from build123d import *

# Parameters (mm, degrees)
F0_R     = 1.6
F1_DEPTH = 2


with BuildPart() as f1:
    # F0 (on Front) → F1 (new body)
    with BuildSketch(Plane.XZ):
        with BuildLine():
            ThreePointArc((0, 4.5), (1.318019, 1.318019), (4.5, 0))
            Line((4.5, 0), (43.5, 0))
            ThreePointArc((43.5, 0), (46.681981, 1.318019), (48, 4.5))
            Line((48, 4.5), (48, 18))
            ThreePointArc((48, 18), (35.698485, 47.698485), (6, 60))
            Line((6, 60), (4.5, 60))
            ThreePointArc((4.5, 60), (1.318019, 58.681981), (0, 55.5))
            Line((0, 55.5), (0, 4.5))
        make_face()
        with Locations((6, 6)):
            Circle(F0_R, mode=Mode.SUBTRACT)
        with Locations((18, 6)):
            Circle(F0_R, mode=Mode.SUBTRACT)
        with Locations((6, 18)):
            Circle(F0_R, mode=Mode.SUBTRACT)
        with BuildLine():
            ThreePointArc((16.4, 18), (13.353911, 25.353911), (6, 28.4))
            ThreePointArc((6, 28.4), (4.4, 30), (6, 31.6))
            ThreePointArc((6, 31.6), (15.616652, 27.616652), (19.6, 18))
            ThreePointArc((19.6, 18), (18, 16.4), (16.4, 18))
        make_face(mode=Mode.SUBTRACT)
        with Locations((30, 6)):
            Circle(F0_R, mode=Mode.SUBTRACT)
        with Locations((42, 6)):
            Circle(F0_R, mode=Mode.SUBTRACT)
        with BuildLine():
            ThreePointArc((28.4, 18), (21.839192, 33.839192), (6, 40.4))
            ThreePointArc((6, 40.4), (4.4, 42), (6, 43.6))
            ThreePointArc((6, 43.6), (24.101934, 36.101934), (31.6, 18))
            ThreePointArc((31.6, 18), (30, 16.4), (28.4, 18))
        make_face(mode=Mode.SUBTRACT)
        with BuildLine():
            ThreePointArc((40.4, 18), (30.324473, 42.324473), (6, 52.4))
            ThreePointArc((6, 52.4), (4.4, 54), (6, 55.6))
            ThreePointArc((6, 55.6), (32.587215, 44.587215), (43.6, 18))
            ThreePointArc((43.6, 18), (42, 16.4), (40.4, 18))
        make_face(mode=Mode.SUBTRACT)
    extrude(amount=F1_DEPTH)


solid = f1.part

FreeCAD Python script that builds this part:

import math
import FreeCAD as App
import Part
import Sketcher

V = App.Vector
Q = App.Units.Quantity

doc = App.newDocument("Part")
body = doc.addObject("PartDesign::Body", "Body")

# Sketch on XZ plane
sketch1 = body.newObject("Sketcher::SketchObject", "Sketch")
sketch1.AttachmentSupport = (doc.getObject("XZ_Plane"), [""])
sketch1.MapMode = "FlatFace"
sketch1.addGeometry(Part.ArcOfCircle(Part.Circle(V(4.5, 4.5, 0), V(0, 0, 1), 4.5), math.radians(180), math.radians(270)), False)
sketch1.addGeometry(Part.LineSegment(V(4.5, 0, 0), V(43.5, 0, 0)), False)
sketch1.addGeometry(Part.ArcOfCircle(Part.Circle(V(43.5, 4.5, 0), V(0, 0, 1), 4.5), math.radians(-90), math.radians(0)), False)
sketch1.addGeometry(Part.LineSegment(V(48, 4.5, 0), V(48, 18, 0)), False)
sketch1.addGeometry(Part.ArcOfCircle(Part.Circle(V(6, 18, 0), V(0, 0, 1), 42), math.radians(0), math.radians(90)), False)
sketch1.addGeometry(Part.LineSegment(V(6, 60, 0), V(4.5, 60, 0)), False)
sketch1.addGeometry(Part.ArcOfCircle(Part.Circle(V(4.5, 55.5, 0), V(0, 0, 1), 4.5), math.radians(90), math.radians(180)), False)
sketch1.addGeometry(Part.LineSegment(V(0, 55.5, 0), V(0, 4.5, 0)), False)
sketch1.addGeometry(Part.Circle(V(6, 6, 0), V(0, 0, 1), 1.6), False)
sketch1.addGeometry(Part.Circle(V(18, 6, 0), V(0, 0, 1), 1.6), False)
sketch1.addGeometry(Part.Circle(V(6, 18, 0), V(0, 0, 1), 1.6), False)
sketch1.addGeometry(Part.ArcOfCircle(Part.Circle(V(18, 18, 0), V(0, 0, 1), 1.6), math.radians(180), math.radians(360)), False)
sketch1.addGeometry(Part.ArcOfCircle(Part.Circle(V(6, 18, 0), V(0, 0, 1), 10.4), math.radians(0), math.radians(90)), False)
sketch1.addGeometry(Part.ArcOfCircle(Part.Circle(V(6, 30, 0), V(0, 0, 1), 1.6), math.radians(90), math.radians(270)), False)
sketch1.addGeometry(Part.ArcOfCircle(Part.Circle(V(6, 18, 0), V(0, 0, 1), 13.6), math.radians(0), math.radians(90)), False)
sketch1.addGeometry(Part.Circle(V(30, 6, 0), V(0, 0, 1), 1.6), False)
sketch1.addGeometry(Part.Circle(V(42, 6, 0), V(0, 0, 1), 1.6), False)
sketch1.addGeometry(Part.ArcOfCircle(Part.Circle(V(30, 18, 0), V(0, 0, 1), 1.6), math.radians(180), math.radians(360)), False)
sketch1.addGeometry(Part.ArcOfCircle(Part.Circle(V(6, 18, 0), V(0, 0, 1), 22.4), math.radians(0), math.radians(90)), False)
sketch1.addGeometry(Part.ArcOfCircle(Part.Circle(V(6, 42, 0), V(0, 0, 1), 1.6), math.radians(90), math.radians(270)), False)
sketch1.addGeometry(Part.ArcOfCircle(Part.Circle(V(6, 18, 0), V(0, 0, 1), 25.6), math.radians(0), math.radians(90)), False)
sketch1.addGeometry(Part.ArcOfCircle(Part.Circle(V(42, 18, 0), V(0, 0, 1), 1.6), math.radians(180), math.radians(360)), False)
sketch1.addGeometry(Part.ArcOfCircle(Part.Circle(V(6, 18, 0), V(0, 0, 1), 34.4), math.radians(0), math.radians(90)), False)
sketch1.addGeometry(Part.ArcOfCircle(Part.Circle(V(6, 54, 0), V(0, 0, 1), 1.6), math.radians(90), math.radians(270)), False)
sketch1.addGeometry(Part.ArcOfCircle(Part.Circle(V(6, 18, 0), V(0, 0, 1), 37.6), math.radians(0), math.radians(90)), False)
sketch1.addConstraint(Sketcher.Constraint("Tangent", 0, 2, 1, 1))
sketch1.addConstraint(Sketcher.Constraint("Tangent", 1, 2, 2, 1))
sketch1.addConstraint(Sketcher.Constraint("Tangent", 2, 2, 3, 1))
sketch1.addConstraint(Sketcher.Constraint("Tangent", 3, 2, 4, 1))
sketch1.addConstraint(Sketcher.Constraint("Tangent", 4, 2, 5, 1))
sketch1.addConstraint(Sketcher.Constraint("Tangent", 5, 2, 6, 1))
sketch1.addConstraint(Sketcher.Constraint("Tangent", 6, 2, 7, 1))
sketch1.addConstraint(Sketcher.Constraint("Tangent", 7, 2, 0, 1))
sketch1.addConstraint(Sketcher.Constraint("Tangent", 11, 1, 12, 1))
sketch1.addConstraint(Sketcher.Constraint("Tangent", 12, 2, 13, 2))
sketch1.addConstraint(Sketcher.Constraint("Tangent", 13, 1, 14, 2))
sketch1.addConstraint(Sketcher.Constraint("Tangent", 14, 1, 11, 2))
sketch1.addConstraint(Sketcher.Constraint("Tangent", 17, 1, 18, 1))
sketch1.addConstraint(Sketcher.Constraint("Tangent", 18, 2, 19, 2))
sketch1.addConstraint(Sketcher.Constraint("Tangent", 19, 1, 20, 2))
sketch1.addConstraint(Sketcher.Constraint("Tangent", 20, 1, 17, 2))
sketch1.addConstraint(Sketcher.Constraint("Tangent", 21, 1, 22, 1))
sketch1.addConstraint(Sketcher.Constraint("Tangent", 22, 2, 23, 2))
sketch1.addConstraint(Sketcher.Constraint("Tangent", 23, 1, 24, 2))
sketch1.addConstraint(Sketcher.Constraint("Tangent", 24, 1, 21, 2))
sketch1.addConstraint(Sketcher.Constraint("Horizontal", 1))
sketch1.addConstraint(Sketcher.Constraint("Vertical", 3))
sketch1.addConstraint(Sketcher.Constraint("Horizontal", 5))
sketch1.addConstraint(Sketcher.Constraint("Vertical", 7))
sketch1.addConstraint(Sketcher.Constraint("Coincident", 10, 3, 4, 3))
sketch1.addConstraint(Sketcher.Constraint("Coincident", 12, 3, 4, 3))
sketch1.addConstraint(Sketcher.Constraint("Coincident", 14, 3, 4, 3))
sketch1.addConstraint(Sketcher.Constraint("Coincident", 18, 3, 4, 3))
sketch1.addConstraint(Sketcher.Constraint("Coincident", 20, 3, 4, 3))
sketch1.addConstraint(Sketcher.Constraint("Coincident", 22, 3, 4, 3))
sketch1.addConstraint(Sketcher.Constraint("Coincident", 24, 3, 4, 3))
sketch1.addConstraint(Sketcher.Constraint("Equal", 0, 2))
sketch1.addConstraint(Sketcher.Constraint("Equal", 2, 6))
sketch1.addConstraint(Sketcher.Constraint("Equal", 8, 9))
sketch1.addConstraint(Sketcher.Constraint("Equal", 9, 10))
sketch1.addConstraint(Sketcher.Constraint("Equal", 10, 11))
sketch1.addConstraint(Sketcher.Constraint("Equal", 13, 15))
sketch1.addConstraint(Sketcher.Constraint("Equal", 15, 16))
sketch1.addConstraint(Sketcher.Constraint("Equal", 16, 17))
sketch1.addConstraint(Sketcher.Constraint("Equal", 19, 21))
sketch1.addConstraint(Sketcher.Constraint("PointOnObject", 0, 2, -1))
sketch1.addConstraint(Sketcher.Constraint("PointOnObject", 6, 2, -2))
sketch1.addConstraint(Sketcher.Constraint("Horizontal", 8, 3, 9, 3))
sketch1.addConstraint(Sketcher.Constraint("Horizontal", 10, 3, 11, 3))
sketch1.addConstraint(Sketcher.Constraint("Horizontal", 9, 3, 15, 3))
sketch1.addConstraint(Sketcher.Constraint("Horizontal", 15, 3, 16, 3))
sketch1.addConstraint(Sketcher.Constraint("Horizontal", 14, 3, 17, 3))
sketch1.addConstraint(Sketcher.Constraint("Horizontal", 20, 3, 21, 3))
sketch1.addConstraint(Sketcher.Constraint("Vertical", 4, 3, 8, 3))
sketch1.addConstraint(Sketcher.Constraint("Vertical", 9, 3, 11, 3))
sketch1.addConstraint(Sketcher.Constraint("Vertical", 12, 3, 13, 3))
sketch1.addConstraint(Sketcher.Constraint("Vertical", 15, 3, 17, 3))
sketch1.addConstraint(Sketcher.Constraint("Vertical", 18, 3, 19, 3))
sketch1.addConstraint(Sketcher.Constraint("Vertical", 16, 3, 21, 3))
sketch1.addConstraint(Sketcher.Constraint("Vertical", 22, 3, 23, 3))
sketch1.addConstraint(Sketcher.Constraint("Radius", 4, Q("41.999999 mm")))
sketch1.addConstraint(Sketcher.Constraint("Diameter", 8, Q("3.2 mm")))
sketch1.addConstraint(Sketcher.Constraint("Radius", 0, Q("4.499998 mm")))
sketch1.addConstraint(Sketcher.Constraint("Radius", 12, Q("10.399998 mm")))
sketch1.addConstraint(Sketcher.Constraint("Radius", 18, Q("22.4 mm")))
sketch1.addConstraint(Sketcher.Constraint("Radius", 22, Q("34.400001 mm")))
sketch1.addConstraint(Sketcher.Constraint("DistanceX", 1, 1, 1, 2, Q("39 mm")))
sketch1.addConstraint(Sketcher.Constraint("DistanceY", 7, 2, 7, 1, Q("51 mm")))
sketch1.addConstraint(Sketcher.Constraint("DistanceY", -1, 1, 8, 3, Q("6 mm")))
pad1 = body.newObject("PartDesign::Pad", "Pad")
pad1.Profile = sketch1
pad1.Length = 2

doc.recompute()
